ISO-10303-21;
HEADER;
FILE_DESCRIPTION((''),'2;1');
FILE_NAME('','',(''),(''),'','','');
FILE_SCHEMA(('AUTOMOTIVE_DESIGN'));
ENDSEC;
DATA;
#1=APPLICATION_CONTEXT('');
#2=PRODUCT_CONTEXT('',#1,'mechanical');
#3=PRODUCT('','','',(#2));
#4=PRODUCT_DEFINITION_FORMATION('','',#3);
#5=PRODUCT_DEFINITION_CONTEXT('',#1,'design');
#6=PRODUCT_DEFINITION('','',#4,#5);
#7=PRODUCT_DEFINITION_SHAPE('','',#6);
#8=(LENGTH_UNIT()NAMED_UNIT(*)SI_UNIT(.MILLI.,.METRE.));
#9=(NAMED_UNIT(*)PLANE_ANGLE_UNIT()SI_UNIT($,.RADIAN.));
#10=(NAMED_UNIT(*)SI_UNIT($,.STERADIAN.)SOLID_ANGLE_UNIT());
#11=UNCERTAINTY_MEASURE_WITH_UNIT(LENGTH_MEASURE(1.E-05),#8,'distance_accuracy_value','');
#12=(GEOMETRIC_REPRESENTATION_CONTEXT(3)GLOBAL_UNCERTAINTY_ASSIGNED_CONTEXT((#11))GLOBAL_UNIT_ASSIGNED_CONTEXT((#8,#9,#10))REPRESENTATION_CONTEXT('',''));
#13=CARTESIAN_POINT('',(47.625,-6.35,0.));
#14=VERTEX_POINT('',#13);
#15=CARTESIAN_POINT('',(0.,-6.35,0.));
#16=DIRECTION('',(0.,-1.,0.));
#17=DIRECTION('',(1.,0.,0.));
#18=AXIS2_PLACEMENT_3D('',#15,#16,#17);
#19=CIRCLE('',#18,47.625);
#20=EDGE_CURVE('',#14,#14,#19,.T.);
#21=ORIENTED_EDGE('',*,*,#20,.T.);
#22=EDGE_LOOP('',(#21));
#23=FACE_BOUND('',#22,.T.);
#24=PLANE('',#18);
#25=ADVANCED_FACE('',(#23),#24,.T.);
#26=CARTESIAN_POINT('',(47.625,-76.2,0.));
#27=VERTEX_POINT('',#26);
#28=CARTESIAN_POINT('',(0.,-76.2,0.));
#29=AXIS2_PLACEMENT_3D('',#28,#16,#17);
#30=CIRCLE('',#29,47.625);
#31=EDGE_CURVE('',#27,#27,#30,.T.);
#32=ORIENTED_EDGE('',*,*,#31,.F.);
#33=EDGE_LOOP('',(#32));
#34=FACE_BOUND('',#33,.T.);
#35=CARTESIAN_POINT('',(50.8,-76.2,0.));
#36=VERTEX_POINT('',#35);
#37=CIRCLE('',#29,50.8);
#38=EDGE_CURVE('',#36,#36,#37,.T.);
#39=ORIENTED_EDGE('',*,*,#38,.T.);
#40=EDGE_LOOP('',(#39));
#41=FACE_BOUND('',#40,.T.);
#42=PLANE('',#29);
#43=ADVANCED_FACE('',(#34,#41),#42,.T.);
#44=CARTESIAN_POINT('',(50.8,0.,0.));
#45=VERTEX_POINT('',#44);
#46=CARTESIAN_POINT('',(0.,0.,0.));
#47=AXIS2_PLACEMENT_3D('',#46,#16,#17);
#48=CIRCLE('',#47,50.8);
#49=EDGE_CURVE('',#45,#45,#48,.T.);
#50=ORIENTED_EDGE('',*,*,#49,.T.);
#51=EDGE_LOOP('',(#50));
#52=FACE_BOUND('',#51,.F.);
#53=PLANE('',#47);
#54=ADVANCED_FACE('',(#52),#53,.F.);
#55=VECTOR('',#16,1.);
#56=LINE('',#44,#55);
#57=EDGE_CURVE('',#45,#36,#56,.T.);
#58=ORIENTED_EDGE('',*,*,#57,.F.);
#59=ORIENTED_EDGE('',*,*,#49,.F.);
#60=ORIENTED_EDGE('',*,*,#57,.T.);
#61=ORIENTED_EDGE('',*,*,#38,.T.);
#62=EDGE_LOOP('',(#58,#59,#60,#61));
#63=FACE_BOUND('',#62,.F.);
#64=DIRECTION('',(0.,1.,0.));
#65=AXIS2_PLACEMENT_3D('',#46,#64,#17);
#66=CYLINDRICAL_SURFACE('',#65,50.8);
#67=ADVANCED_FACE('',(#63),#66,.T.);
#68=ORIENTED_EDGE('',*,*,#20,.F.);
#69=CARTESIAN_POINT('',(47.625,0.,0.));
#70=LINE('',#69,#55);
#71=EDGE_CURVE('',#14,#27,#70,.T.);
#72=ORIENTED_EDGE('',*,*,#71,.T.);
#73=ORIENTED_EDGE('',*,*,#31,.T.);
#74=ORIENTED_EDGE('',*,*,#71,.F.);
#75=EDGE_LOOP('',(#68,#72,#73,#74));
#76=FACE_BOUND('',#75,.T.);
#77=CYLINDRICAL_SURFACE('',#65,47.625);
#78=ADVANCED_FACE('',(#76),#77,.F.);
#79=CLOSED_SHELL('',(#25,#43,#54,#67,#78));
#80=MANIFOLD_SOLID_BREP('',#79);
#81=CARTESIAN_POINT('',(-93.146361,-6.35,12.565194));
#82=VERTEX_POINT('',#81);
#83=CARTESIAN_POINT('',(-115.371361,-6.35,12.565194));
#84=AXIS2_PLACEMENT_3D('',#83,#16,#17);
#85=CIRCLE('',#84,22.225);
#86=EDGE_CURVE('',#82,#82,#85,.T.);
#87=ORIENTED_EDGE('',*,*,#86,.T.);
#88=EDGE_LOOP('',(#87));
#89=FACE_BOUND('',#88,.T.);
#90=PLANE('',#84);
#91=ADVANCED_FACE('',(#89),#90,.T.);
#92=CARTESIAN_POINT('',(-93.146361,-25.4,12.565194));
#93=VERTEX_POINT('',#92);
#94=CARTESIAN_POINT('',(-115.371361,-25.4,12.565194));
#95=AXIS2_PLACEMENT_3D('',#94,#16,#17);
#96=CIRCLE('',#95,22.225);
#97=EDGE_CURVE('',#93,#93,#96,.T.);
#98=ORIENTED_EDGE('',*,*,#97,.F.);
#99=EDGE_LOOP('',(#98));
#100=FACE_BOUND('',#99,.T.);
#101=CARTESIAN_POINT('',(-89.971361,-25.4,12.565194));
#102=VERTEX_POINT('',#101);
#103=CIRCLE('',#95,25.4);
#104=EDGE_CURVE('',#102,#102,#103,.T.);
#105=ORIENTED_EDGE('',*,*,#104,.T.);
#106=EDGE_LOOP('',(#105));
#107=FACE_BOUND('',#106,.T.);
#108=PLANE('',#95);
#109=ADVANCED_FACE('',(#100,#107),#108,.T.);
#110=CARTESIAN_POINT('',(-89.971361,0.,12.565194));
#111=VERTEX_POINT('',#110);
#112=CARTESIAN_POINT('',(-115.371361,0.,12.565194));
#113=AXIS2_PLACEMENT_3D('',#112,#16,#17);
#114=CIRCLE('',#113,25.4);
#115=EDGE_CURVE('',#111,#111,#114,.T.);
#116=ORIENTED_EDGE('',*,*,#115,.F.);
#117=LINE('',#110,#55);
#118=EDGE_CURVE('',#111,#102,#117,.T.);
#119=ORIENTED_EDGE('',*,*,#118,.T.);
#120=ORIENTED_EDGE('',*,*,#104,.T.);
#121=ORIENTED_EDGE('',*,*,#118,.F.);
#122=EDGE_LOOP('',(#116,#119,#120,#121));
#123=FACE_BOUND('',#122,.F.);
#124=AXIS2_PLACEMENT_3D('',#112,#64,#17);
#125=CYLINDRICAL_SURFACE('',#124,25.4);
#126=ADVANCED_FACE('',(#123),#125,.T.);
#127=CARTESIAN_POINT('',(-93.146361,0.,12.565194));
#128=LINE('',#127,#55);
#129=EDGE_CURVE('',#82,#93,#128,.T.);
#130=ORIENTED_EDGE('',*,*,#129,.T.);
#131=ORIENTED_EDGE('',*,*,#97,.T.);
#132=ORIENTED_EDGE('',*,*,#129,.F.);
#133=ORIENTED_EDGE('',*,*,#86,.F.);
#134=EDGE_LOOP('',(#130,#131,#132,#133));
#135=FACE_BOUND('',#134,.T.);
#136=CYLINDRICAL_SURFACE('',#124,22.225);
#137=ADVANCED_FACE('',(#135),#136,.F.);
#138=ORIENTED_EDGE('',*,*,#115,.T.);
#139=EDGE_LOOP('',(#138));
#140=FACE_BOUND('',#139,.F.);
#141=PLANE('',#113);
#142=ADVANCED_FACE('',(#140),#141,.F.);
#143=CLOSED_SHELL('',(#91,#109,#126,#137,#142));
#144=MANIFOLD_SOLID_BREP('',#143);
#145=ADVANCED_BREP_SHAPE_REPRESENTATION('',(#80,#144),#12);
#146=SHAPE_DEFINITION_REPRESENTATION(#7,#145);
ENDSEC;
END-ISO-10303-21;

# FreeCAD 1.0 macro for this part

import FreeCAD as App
import Part
import Sketcher

V = App.Vector
Q = App.Units.Quantity

doc = App.newDocument("Part")
body = doc.addObject("PartDesign::Body", "Body")

sketch1 = doc.addObject("Sketcher::SketchObject", "Sketch")
body.addObject(sketch1)
sketch1.AttachmentSupport = (doc.XZ_Plane, [""])
sketch1.MapMode = "FlatFace"
sketch1.addGeometry([
    Part.Circle(V(-115, 13, 0), V(0, 0, 1), 25),
    Part.Circle(V(-115, 13, 0), V(0, 0, 1), 22),
], False)
sketch1.addConstraint([
    Sketcher.Constraint("Coincident", 1, 3, 0, 3),
    Sketcher.Constraint("Diameter", 0, Q("2 in")),
    Sketcher.Constraint("Diameter", 1, Q("1.75 in")),
    Sketcher.Constraint("DistanceX", 0, 3, -1, 1, Q("115.371361 mm")),
    Sketcher.Constraint("DistanceY", -1, 1, 0, 3, Q("12.565194 mm")),
])
pad1 = doc.addObject("PartDesign::Pad", "Pad")
body.addObject(pad1)
pad1.Profile = sketch1
pad1.Length = Q("1 in")

sketch2 = doc.addObject("Sketcher::SketchObject", "Sketch001")
body.addObject(sketch2)
sketch2.AttachmentSupport = (doc.XZ_Plane, [""])
sketch2.MapMode = "FlatFace"
sketch2.addGeometry(Part.Circle(V(-115, 13, 0), V(0, 0, 1), 22), False)
sketch2.addConstraint([
    Sketcher.Constraint("Diameter", 0, Q("1.75 in")),
    Sketcher.Constraint("DistanceX", 0, 3, -1, 1, Q("115.371361 mm")),
    Sketcher.Constraint("DistanceY", -1, 1, 0, 3, Q("12.565194 mm")),
])
pad2 = doc.addObject("PartDesign::Pad", "Pad001")
body.addObject(pad2)
pad2.Profile = sketch2
pad2.Length = Q("0.25 in")
body2 = doc.addObject("PartDesign::Body", "Body001")

sketch3 = doc.addObject("Sketcher::SketchObject", "Sketch002")
body2.addObject(sketch3)
sketch3.AttachmentSupport = (doc.getObject("XZ_Plane001"), [""])
sketch3.MapMode = "FlatFace"
sketch3.addGeometry([
    Part.Circle(V(0, 0, 0), V(0, 0, 1), 51),
    Part.Circle(V(0, 0, 0), V(0, 0, 1), 48),
], False)
sketch3.addConstraint([
    Sketcher.Constraint("Coincident", 0, 3, -1, 1),
    Sketcher.Constraint("Coincident", 1, 3, -1, 1),
    Sketcher.Constraint("Diameter", 0, Q("4 in")),
    Sketcher.Constraint("Diameter", 1, Q("3.75 in")),
])
pad3 = doc.addObject("PartDesign::Pad", "Pad002")
body2.addObject(pad3)
pad3.Profile = sketch3
pad3.Length = Q("3 in")

sketch4 = doc.addObject("Sketcher::SketchObject", "Sketch003")
body2.addObject(sketch4)
sketch4.AttachmentSupport = (doc.getObject("XZ_Plane001"), [""])
sketch4.MapMode = "FlatFace"
sketch4.addGeometry(Part.Circle(V(0, 0, 0), V(0, 0, 1), 48), False)
sketch4.addConstraint([
    Sketcher.Constraint("Coincident", 0, 3, -1, 1),
    Sketcher.Constraint("Diameter", 0, Q("3.75 in")),
])
pad4 = doc.addObject("PartDesign::Pad", "Pad003")
body2.addObject(pad4)
pad4.Profile = sketch4
pad4.Length = Q("0.25 in")

doc.recompute()
